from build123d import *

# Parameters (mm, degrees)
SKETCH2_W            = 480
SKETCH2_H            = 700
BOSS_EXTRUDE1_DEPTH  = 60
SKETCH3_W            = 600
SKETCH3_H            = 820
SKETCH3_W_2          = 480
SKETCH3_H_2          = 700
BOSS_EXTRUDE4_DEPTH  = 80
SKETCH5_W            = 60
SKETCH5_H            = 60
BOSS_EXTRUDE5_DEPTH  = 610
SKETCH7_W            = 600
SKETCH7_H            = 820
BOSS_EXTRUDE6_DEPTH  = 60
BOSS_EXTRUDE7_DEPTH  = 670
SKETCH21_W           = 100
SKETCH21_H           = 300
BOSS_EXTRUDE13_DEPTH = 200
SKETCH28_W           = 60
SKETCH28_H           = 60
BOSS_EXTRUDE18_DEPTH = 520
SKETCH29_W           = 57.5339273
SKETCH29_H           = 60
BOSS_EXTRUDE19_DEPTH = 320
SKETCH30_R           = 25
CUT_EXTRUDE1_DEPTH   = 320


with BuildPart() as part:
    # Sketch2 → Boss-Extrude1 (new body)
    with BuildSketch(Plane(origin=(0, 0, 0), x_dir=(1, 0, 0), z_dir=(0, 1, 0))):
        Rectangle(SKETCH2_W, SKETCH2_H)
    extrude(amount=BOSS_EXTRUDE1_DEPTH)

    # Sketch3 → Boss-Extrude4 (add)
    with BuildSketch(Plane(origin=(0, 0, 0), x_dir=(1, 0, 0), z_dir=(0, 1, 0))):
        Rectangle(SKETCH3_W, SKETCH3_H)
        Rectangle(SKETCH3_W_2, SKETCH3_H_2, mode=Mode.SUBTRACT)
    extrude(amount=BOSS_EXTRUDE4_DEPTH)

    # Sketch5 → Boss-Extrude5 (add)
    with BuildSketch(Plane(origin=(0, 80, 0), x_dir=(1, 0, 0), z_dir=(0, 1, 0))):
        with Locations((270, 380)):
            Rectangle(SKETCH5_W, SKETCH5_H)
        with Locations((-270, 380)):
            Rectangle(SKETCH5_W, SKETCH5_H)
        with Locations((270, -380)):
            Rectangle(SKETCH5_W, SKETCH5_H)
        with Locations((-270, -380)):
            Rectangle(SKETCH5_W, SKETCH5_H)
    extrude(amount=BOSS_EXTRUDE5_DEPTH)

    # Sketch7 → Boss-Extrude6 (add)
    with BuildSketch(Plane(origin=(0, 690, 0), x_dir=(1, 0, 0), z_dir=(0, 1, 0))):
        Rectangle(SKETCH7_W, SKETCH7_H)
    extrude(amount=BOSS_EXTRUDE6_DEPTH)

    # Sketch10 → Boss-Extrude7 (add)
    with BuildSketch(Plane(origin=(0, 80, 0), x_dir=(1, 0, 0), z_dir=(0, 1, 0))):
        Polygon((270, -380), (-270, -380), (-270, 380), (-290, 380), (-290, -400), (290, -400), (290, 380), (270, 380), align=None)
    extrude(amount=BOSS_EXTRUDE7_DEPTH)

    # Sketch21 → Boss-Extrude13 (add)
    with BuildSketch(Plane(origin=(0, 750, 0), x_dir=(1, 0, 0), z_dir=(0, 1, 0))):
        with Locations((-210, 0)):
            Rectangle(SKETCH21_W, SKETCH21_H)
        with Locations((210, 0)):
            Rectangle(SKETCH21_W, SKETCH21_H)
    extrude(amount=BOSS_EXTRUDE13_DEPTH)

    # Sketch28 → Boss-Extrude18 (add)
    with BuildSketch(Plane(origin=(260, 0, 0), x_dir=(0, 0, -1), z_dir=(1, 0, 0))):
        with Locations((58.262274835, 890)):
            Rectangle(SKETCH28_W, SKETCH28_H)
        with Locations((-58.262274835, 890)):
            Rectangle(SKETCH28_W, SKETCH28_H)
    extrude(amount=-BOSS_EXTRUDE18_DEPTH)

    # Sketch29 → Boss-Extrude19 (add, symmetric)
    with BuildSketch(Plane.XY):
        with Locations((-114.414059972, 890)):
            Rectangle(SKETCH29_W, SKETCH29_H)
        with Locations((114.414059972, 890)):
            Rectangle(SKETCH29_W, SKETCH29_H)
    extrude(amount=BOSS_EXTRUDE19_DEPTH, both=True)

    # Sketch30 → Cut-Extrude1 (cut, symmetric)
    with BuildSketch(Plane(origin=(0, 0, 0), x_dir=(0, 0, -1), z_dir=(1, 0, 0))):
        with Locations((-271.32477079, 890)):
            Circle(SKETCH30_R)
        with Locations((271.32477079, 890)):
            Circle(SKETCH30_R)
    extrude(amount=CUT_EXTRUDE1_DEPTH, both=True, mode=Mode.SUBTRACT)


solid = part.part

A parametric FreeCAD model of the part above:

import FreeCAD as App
import Part
import Sketcher

V = App.Vector
Q = App.Units.Quantity


def add_polygon(sketch, points):
    """Adds a closed chain of lines whose ends are joined by coincident constraints."""
    first, n = sketch.GeometryCount, len(points)
    for a, b in zip(points, points[1:] + points[:1]):
        sketch.addGeometry(Part.LineSegment(App.Vector(*a, 0), App.Vector(*b, 0)), False)
    for i in range(n):
        sketch.addConstraint(Sketcher.Constraint("Coincident", first + i, 2, first + (i + 1) % n, 1))

doc = App.newDocument("Part")
params = doc.addObject("Spreadsheet::Sheet", "Params")
for row, (alias, value) in enumerate([
    ("sketch1_width", "480 mm"),
    ("sketch1_height", "700 mm"),
    ("pad1_length", "60 mm"),
    ("sketch2_width", "600 mm"),
    ("sketch2_width2", "480 mm"),
    ("sketch2_height", "820 mm"),
    ("sketch2_height2", "700 mm"),
    ("pad2_length", "80 mm"),
    ("sketch3_width", "60 mm"),
    ("pad3_length", "610 mm"),
    ("sketch4_width", "600 mm"),
    ("sketch4_height", "820 mm"),
    ("pad4_length", "60 mm"),
    ("sketch5_width", "540 mm"),
    ("sketch5_width2", "20 mm"),
    ("sketch5_height", "760 mm"),
    ("sketch5_height2", "780 mm"),
    ("pad5_length", "670 mm"),
    ("sketch6_width", "100 mm"),
    ("sketch6_height", "300 mm"),
    ("pad6_length", "200 mm"),
    ("sketch7_width", "60 mm"),
    ("pad7_length", "520 mm"),
    ("sketch8_height", "60 mm"),
    ("pad8_length", "640 mm"),
    ("sketch9_diameter", "50 mm"),
    ("pocket1_length", "640 mm"),
], start=1):
    params.set(f"A{row}", alias)
    params.set(f"B{row}", "=" + value)
    params.setAlias(f"B{row}", alias)

body = doc.addObject("PartDesign::Body", "Body")

# Sketch on XZ plane
sketch1 = body.newObject("Sketcher::SketchObject", "Sketch")
sketch1.AttachmentSupport = (doc.getObject("XZ_Plane"), [""])
sketch1.MapMode = "FlatFace"
add_polygon(sketch1, [(-240, -350), (-240, 350), (240, 350), (240, -350)])  # lines 0-3
sketch1.addConstraint(Sketcher.Constraint("Vertical", 0))
sketch1.addConstraint(Sketcher.Constraint("Horizontal", 1))
sketch1.addConstraint(Sketcher.Constraint("Vertical", 2))
sketch1.addConstraint(Sketcher.Constraint("Horizontal", 3))
sketch1.addConstraint(Sketcher.Constraint("Symmetric", 0, 2, 2, 2, -1, 1))
sketch1.addConstraint(Sketcher.Constraint("DistanceX", 1, 1, 1, 2, Q("480 mm")))
sketch1.addConstraint(Sketcher.Constraint("DistanceY", 0, 1, 0, 2, Q("700 mm")))
sketch1.setExpression("Constraints[9]", "Params.sketch1_width")
sketch1.setExpression("Constraints[10]", "Params.sketch1_height")
pad1 = body.newObject("PartDesign::Pad", "Pad")
pad1.Profile = sketch1
pad1.setExpression("Length", "Params.pad1_length")
pad1.Reversed = True

# Sketch on XZ plane
sketch2 = body.newObject("Sketcher::SketchObject", "Sketch001")
sketch2.AttachmentSupport = (doc.getObject("XZ_Plane"), [""])
sketch2.MapMode = "FlatFace"
add_polygon(sketch2, [(-300, -410), (-300, 410), (300, 410), (300, -410)])  # lines 0-3
add_polygon(sketch2, [(240, 350), (-240, 350), (-240, -350), (240, -350)])  # lines 4-7
sketch2.addConstraint(Sketcher.Constraint("Vertical", 0))
sketch2.addConstraint(Sketcher.Constraint("Horizontal", 1))
sketch2.addConstraint(Sketcher.Constraint("Vertical", 2))
sketch2.addConstraint(Sketcher.Constraint("Horizontal", 3))
sketch2.addConstraint(Sketcher.Constraint("Horizontal", 4))
sketch2.addConstraint(Sketcher.Constraint("Vertical", 5))
sketch2.addConstraint(Sketcher.Constraint("Horizontal", 6))
sketch2.addConstraint(Sketcher.Constraint("Vertical", 7))
sketch2.addConstraint(Sketcher.Constraint("Symmetric", 0, 2, 2, 2, -1, 1))
sketch2.addConstraint(Sketcher.Constraint("Symmetric", 4, 2, 6, 2, -1, 1))
sketch2.addConstraint(Sketcher.Constraint("DistanceX", 1, 1, 1, 2, Q("600 mm")))
sketch2.addConstraint(Sketcher.Constraint("DistanceX", 4, 2, 4, 1, Q("480 mm")))
sketch2.addConstraint(Sketcher.Constraint("DistanceY", 0, 1, 0, 2, Q("820 mm")))
sketch2.addConstraint(Sketcher.Constraint("DistanceY", 5, 2, 5, 1, Q("700 mm")))
sketch2.setExpression("Constraints[18]", "Params.sketch2_width")
sketch2.setExpression("Constraints[19]", "Params.sketch2_width2")
sketch2.setExpression("Constraints[20]", "Params.sketch2_height")
sketch2.setExpression("Constraints[21]", "Params.sketch2_height2")
pad2 = body.newObject("PartDesign::Pad", "Pad001")
pad2.Profile = sketch2
pad2.setExpression("Length", "Params.pad2_length")
pad2.Reversed = True

# Sketch on XZ plane
sketch3 = body.newObject("Sketcher::SketchObject", "Sketch002")
sketch3.AttachmentSupport = (doc.getObject("XZ_Plane"), [""])
sketch3.MapMode = "FlatFace"
sketch3.AttachmentOffset = App.Placement(V(0, 0, -80), App.Rotation())
add_polygon(sketch3, [(240, -410), (240, -350), (300, -350), (300, -410)])  # lines 0-3
add_polygon(sketch3, [(-300, -410), (-300, -350), (-240, -350), (-240, -410)])  # lines 4-7
add_polygon(sketch3, [(240, 350), (240, 410), (300, 410), (300, 350)])  # lines 8-11
add_polygon(sketch3, [(-300, 350), (-300, 410), (-240, 410), (-240, 350)])  # lines 12-15
sketch3.addConstraint(Sketcher.Constraint("Vertical", 0))
sketch3.addConstraint(Sketcher.Constraint("Horizontal", 1))
sketch3.addConstraint(Sketcher.Constraint("Vertical", 2))
sketch3.addConstraint(Sketcher.Constraint("Horizontal", 3))
sketch3.addConstraint(Sketcher.Constraint("Vertical", 4))
sketch3.addConstraint(Sketcher.Constraint("Horizontal", 5))
sketch3.addConstraint(Sketcher.Constraint("Vertical", 6))
sketch3.addConstraint(Sketcher.Constraint("Horizontal", 7))
sketch3.addConstraint(Sketcher.Constraint("Vertical", 8))
sketch3.addConstraint(Sketcher.Constraint("Horizontal", 9))
sketch3.addConstraint(Sketcher.Constraint("Vertical", 10))
sketch3.addConstraint(Sketcher.Constraint("Horizontal", 11))
sketch3.addConstraint(Sketcher.Constraint("Vertical", 12))
sketch3.addConstraint(Sketcher.Constraint("Horizontal", 13))
sketch3.addConstraint(Sketcher.Constraint("Vertical", 14))
sketch3.addConstraint(Sketcher.Constraint("Horizontal", 15))
sketch3.addConstraint(Sketcher.Constraint("Symmetric", 6, 2, 8, 2, -1, 1))
sketch3.addConstraint(Sketcher.Constraint("Symmetric", 4, 2, 10, 2, -1, 1))
sketch3.addConstraint(Sketcher.Constraint("Symmetric", 2, 2, 12, 2, -1, 1))
sketch3.addConstraint(Sketcher.Constraint("Symmetric", 0, 2, 14, 2, -1, 1))
sketch3.addConstraint(Sketcher.Constraint("Symmetric", 1, 2, 4, 2, -2))
sketch3.addConstraint(Sketcher.Constraint("Symmetric", 3, 2, 6, 2, -2))
sketch3.addConstraint(Sketcher.Constraint("Equal", 15, 0))
sketch3.addConstraint(Sketcher.Constraint("DistanceX", 1, 1, 1, 2, Q("60 mm")))
sketch3.addConstraint(Sketcher.Constraint("DistanceX", -1, 1, 0, 2, Q("240 mm")))
sketch3.addConstraint(Sketcher.Constraint("DistanceY", 0, 2, -1, 1, Q("350 mm")))
sketch3.setExpression("Constraints[39]", "Params.sketch3_width")
pad3 = body.newObject("PartDesign::Pad", "Pad002")
pad3.Profile = sketch3
pad3.setExpression("Length", "Params.pad3_length")
pad3.Reversed = True

# Sketch on XZ plane
sketch4 = body.newObject("Sketcher::SketchObject", "Sketch003")
sketch4.AttachmentSupport = (doc.getObject("XZ_Plane"), [""])
sketch4.MapMode = "FlatFace"
sketch4.AttachmentOffset = App.Placement(V(0, 0, -690), App.Rotation())
add_polygon(sketch4, [(-300, -410), (-300, 410), (300, 410), (300, -410)])  # lines 0-3
sketch4.addConstraint(Sketcher.Constraint("Vertical", 0))
sketch4.addConstraint(Sketcher.Constraint("Horizontal", 1))
sketch4.addConstraint(Sketcher.Constraint("Vertical", 2))
sketch4.addConstraint(Sketcher.Constraint("Horizontal", 3))
sketch4.addConstraint(Sketcher.Constraint("Symmetric", 0, 2, 2, 2, -1, 1))
sketch4.addConstraint(Sketcher.Constraint("DistanceX", 1, 1, 1, 2, Q("600 mm")))
sketch4.addConstraint(Sketcher.Constraint("DistanceY", 0, 1, 0, 2, Q("820 mm")))
sketch4.setExpression("Constraints[9]", "Params.sketch4_width")
sketch4.setExpression("Constraints[10]", "Params.sketch4_height")
pad4 = body.newObject("PartDesign::Pad", "Pad003")
pad4.Profile = sketch4
pad4.setExpression("Length", "Params.pad4_length")
pad4.Reversed = True

# Sketch on XZ plane
sketch5 = body.newObject("Sketcher::SketchObject", "Sketch004")
sketch5.AttachmentSupport = (doc.getObject("XZ_Plane"), [""])
sketch5.MapMode = "FlatFace"
sketch5.AttachmentOffset = App.Placement(V(0, 0, -80), App.Rotation())
add_polygon(sketch5, [(270, 380), (-270, 380), (-270, -380), (-290, -380), (-290, 400), (290, 400), (290, -380), (270, -380)])  # lines 0-7
sketch5.addConstraint(Sketcher.Constraint("Horizontal", 0))
sketch5.addConstraint(Sketcher.Constraint("Vertical", 1))
sketch5.addConstraint(Sketcher.Constraint("Horizontal", 2))
sketch5.addConstraint(Sketcher.Constraint("Vertical", 3))
sketch5.addConstraint(Sketcher.Constraint("Horizontal", 4))
sketch5.addConstraint(Sketcher.Constraint("Vertical", 5))
sketch5.addConstraint(Sketcher.Constraint("Horizontal", 6))
sketch5.addConstraint(Sketcher.Constraint("Vertical", 7))
sketch5.addConstraint(Sketcher.Constraint("Symmetric", 0, 2, 6, 2, -1, 1))
sketch5.addConstraint(Sketcher.Constraint("Symmetric", 2, 2, 5, 2, -2))
sketch5.addConstraint(Sketcher.Constraint("DistanceX", 0, 2, 0, 1, Q("540 mm")))
sketch5.addConstraint(Sketcher.Constraint("DistanceX", 2, 2, 2, 1, Q("20 mm")))
sketch5.addConstraint(Sketcher.Constraint("DistanceY", 1, 2, 1, 1, Q("760 mm")))
sketch5.addConstraint(Sketcher.Constraint("DistanceY", 3, 1, 3, 2, Q("780 mm")))
sketch5.setExpression("Constraints[18]", "Params.sketch5_width")
sketch5.setExpression("Constraints[19]", "Params.sketch5_width2")
sketch5.setExpression("Constraints[20]", "Params.sketch5_height")
sketch5.setExpression("Constraints[21]", "Params.sketch5_height2")
pad5 = body.newObject("PartDesign::Pad", "Pad004")
pad5.Profile = sketch5
pad5.setExpression("Length", "Params.pad5_length")
pad5.Reversed = True

# Sketch on XZ plane
sketch6 = body.newObject("Sketcher::SketchObject", "Sketch005")
sketch6.AttachmentSupport = (doc.getObject("XZ_Plane"), [""])
sketch6.MapMode = "FlatFace"
sketch6.AttachmentOffset = App.Placement(V(0, 0, -750), App.Rotation())
add_polygon(sketch6, [(-260, -150), (-260, 150), (-160, 150), (-160, -150)])  # lines 0-3
add_polygon(sketch6, [(160, -150), (160, 150), (260, 150), (260, -150)])  # lines 4-7
sketch6.addConstraint(Sketcher.Constraint("Vertical", 0))
sketch6.addConstraint(Sketcher.Constraint("Horizontal", 1))
sketch6.addConstraint(Sketcher.Constraint("Vertical", 2))
sketch6.addConstraint(Sketcher.Constraint("Horizontal", 3))
sketch6.addConstraint(Sketcher.Constraint("Vertical", 4))
sketch6.addConstraint(Sketcher.Constraint("Horizontal", 5))
sketch6.addConstraint(Sketcher.Constraint("Vertical", 6))
sketch6.addConstraint(Sketcher.Constraint("Horizontal", 7))
sketch6.addConstraint(Sketcher.Constraint("Symmetric", 2, 2, 4, 2, -1, 1))
sketch6.addConstraint(Sketcher.Constraint("Symmetric", 0, 2, 6, 2, -1, 1))
sketch6.addConstraint(Sketcher.Constraint("Horizontal", 1, 2, 4, 2))
sketch6.addConstraint(Sketcher.Constraint("DistanceX", 1, 1, 1, 2, Q("100 mm")))
sketch6.addConstraint(Sketcher.Constraint("DistanceY", 0, 1, 0, 2, Q("300 mm")))
sketch6.addConstraint(Sketcher.Constraint("DistanceX", 0, 2, -1, 1, Q("260 mm")))
sketch6.setExpression("Constraints[19]", "Params.sketch6_width")
sketch6.setExpression("Constraints[20]", "Params.sketch6_height")
pad6 = body.newObject("PartDesign::Pad", "Pad005")
pad6.Profile = sketch6
pad6.setExpression("Length", "Params.pad6_length")
pad6.Reversed = True

# Sketch on YZ plane
sketch7 = body.newObject("Sketcher::SketchObject", "Sketch006")
sketch7.AttachmentSupport = (doc.getObject("YZ_Plane"), [""])
sketch7.MapMode = "FlatFace"
sketch7.AttachmentOffset = App.Placement(V(0, 0, 260), App.Rotation())
add_polygon(sketch7, [(920, -28), (860, -28), (860, -88), (920, -88)])  # lines 0-3
add_polygon(sketch7, [(920, 88), (860, 88), (860, 28), (920, 28)])  # lines 4-7
sketch7.addConstraint(Sketcher.Constraint("Horizontal", 0))
sketch7.addConstraint(Sketcher.Constraint("Vertical", 1))
sketch7.addConstraint(Sketcher.Constraint("Horizontal", 2))
sketch7.addConstraint(Sketcher.Constraint("Vertical", 3))
sketch7.addConstraint(Sketcher.Constraint("Horizontal", 4))
sketch7.addConstraint(Sketcher.Constraint("Vertical", 5))
sketch7.addConstraint(Sketcher.Constraint("Horizontal", 6))
sketch7.addConstraint(Sketcher.Constraint("Vertical", 7))
sketch7.addConstraint(Sketcher.Constraint("Symmetric", 1, 2, 4, 2, -1))
sketch7.addConstraint(Sketcher.Constraint("Symmetric", 3, 2, 6, 2, -1))
sketch7.addConstraint(Sketcher.Constraint("Equal", 6, 1))
sketch7.addConstraint(Sketcher.Constraint("DistanceX", 0, 2, 0, 1, Q("60 mm")))
sketch7.addConstraint(Sketcher.Constraint("DistanceX", -1, 1, 0, 2, Q("860 mm")))
sketch7.addConstraint(Sketcher.Constraint("DistanceY", 0, 2, 4, 2, Q("116.52455 mm")))
sketch7.setExpression("Constraints[19]", "Params.sketch7_width")
pad7 = body.newObject("PartDesign::Pad", "Pad006")
pad7.Profile = sketch7
pad7.setExpression("Length", "Params.pad7_length")
pad7.Reversed = True

# Sketch on XY plane
sketch8 = body.newObject("Sketcher::SketchObject", "Sketch007")
sketch8.AttachmentSupport = (doc.getObject("XY_Plane"), [""])
sketch8.MapMode = "FlatFace"
add_polygon(sketch8, [(-143, 920), (-143, 860), (-86, 860), (-86, 920)])  # lines 0-3
add_polygon(sketch8, [(86, 920), (86, 860), (143, 860), (143, 920)])  # lines 4-7
sketch8.addConstraint(Sketcher.Constraint("Vertical", 0))
sketch8.addConstraint(Sketcher.Constraint("Horizontal", 1))
sketch8.addConstraint(Sketcher.Constraint("Vertical", 2))
sketch8.addConstraint(Sketcher.Constraint("Horizontal", 3))
sketch8.addConstraint(Sketcher.Constraint("Vertical", 4))
sketch8.addConstraint(Sketcher.Constraint("Horizontal", 5))
sketch8.addConstraint(Sketcher.Constraint("Vertical", 6))
sketch8.addConstraint(Sketcher.Constraint("Horizontal", 7))
sketch8.addConstraint(Sketcher.Constraint("Symmetric", 1, 2, 4, 2, -2))
sketch8.addConstraint(Sketcher.Constraint("Symmetric", 3, 2, 6, 2, -2))
sketch8.addConstraint(Sketcher.Constraint("DistanceY", 0, 2, 0, 1, Q("60 mm")))
sketch8.addConstraint(Sketcher.Constraint("DistanceY", -1, 1, 0, 2, Q("860 mm")))
sketch8.addConstraint(Sketcher.Constraint("DistanceX", 1, 1, 1, 2, Q("57.533927 mm")))
sketch8.addConstraint(Sketcher.Constraint("DistanceX", 0, 2, 4, 2, Q("228.82812 mm")))
sketch8.setExpression("Constraints[18]", "Params.sketch8_height")
pad8 = body.newObject("PartDesign::Pad", "Pad007")
pad8.Profile = sketch8
pad8.setExpression("Length", "Params.pad8_length")
pad8.Midplane = True

# Sketch on YZ plane
sketch9 = body.newObject("Sketcher::SketchObject", "Sketch008")
sketch9.AttachmentSupport = (doc.getObject("YZ_Plane"), [""])
sketch9.MapMode = "FlatFace"
sketch9.addGeometry(Part.Circle(V(890, 271, 0), V(0, 0, 1), 25), False)
sketch9.addGeometry(Part.Circle(V(890, -271, 0), V(0, 0, 1), 25), False)
sketch9.addConstraint(Sketcher.Constraint("Equal", 0, 1))
sketch9.addConstraint(Sketcher.Constraint("Symmetric", 0, 3, 1, 3, -1))
sketch9.addConstraint(Sketcher.Constraint("Diameter", 0, Q("50 mm")))
sketch9.addConstraint(Sketcher.Constraint("DistanceX", -1, 1, 0, 3, Q("890 mm")))
sketch9.addConstraint(Sketcher.Constraint("DistanceY", -1, 1, 0, 3, Q("271.324771 mm")))
sketch9.setExpression("Constraints[2]", "Params.sketch9_diameter")
pocket1 = body.newObject("PartDesign::Pocket", "Pocket")
pocket1.Profile = sketch9
pocket1.setExpression("Length", "Params.pocket1_length")
pocket1.Midplane = True

doc.recompute()
